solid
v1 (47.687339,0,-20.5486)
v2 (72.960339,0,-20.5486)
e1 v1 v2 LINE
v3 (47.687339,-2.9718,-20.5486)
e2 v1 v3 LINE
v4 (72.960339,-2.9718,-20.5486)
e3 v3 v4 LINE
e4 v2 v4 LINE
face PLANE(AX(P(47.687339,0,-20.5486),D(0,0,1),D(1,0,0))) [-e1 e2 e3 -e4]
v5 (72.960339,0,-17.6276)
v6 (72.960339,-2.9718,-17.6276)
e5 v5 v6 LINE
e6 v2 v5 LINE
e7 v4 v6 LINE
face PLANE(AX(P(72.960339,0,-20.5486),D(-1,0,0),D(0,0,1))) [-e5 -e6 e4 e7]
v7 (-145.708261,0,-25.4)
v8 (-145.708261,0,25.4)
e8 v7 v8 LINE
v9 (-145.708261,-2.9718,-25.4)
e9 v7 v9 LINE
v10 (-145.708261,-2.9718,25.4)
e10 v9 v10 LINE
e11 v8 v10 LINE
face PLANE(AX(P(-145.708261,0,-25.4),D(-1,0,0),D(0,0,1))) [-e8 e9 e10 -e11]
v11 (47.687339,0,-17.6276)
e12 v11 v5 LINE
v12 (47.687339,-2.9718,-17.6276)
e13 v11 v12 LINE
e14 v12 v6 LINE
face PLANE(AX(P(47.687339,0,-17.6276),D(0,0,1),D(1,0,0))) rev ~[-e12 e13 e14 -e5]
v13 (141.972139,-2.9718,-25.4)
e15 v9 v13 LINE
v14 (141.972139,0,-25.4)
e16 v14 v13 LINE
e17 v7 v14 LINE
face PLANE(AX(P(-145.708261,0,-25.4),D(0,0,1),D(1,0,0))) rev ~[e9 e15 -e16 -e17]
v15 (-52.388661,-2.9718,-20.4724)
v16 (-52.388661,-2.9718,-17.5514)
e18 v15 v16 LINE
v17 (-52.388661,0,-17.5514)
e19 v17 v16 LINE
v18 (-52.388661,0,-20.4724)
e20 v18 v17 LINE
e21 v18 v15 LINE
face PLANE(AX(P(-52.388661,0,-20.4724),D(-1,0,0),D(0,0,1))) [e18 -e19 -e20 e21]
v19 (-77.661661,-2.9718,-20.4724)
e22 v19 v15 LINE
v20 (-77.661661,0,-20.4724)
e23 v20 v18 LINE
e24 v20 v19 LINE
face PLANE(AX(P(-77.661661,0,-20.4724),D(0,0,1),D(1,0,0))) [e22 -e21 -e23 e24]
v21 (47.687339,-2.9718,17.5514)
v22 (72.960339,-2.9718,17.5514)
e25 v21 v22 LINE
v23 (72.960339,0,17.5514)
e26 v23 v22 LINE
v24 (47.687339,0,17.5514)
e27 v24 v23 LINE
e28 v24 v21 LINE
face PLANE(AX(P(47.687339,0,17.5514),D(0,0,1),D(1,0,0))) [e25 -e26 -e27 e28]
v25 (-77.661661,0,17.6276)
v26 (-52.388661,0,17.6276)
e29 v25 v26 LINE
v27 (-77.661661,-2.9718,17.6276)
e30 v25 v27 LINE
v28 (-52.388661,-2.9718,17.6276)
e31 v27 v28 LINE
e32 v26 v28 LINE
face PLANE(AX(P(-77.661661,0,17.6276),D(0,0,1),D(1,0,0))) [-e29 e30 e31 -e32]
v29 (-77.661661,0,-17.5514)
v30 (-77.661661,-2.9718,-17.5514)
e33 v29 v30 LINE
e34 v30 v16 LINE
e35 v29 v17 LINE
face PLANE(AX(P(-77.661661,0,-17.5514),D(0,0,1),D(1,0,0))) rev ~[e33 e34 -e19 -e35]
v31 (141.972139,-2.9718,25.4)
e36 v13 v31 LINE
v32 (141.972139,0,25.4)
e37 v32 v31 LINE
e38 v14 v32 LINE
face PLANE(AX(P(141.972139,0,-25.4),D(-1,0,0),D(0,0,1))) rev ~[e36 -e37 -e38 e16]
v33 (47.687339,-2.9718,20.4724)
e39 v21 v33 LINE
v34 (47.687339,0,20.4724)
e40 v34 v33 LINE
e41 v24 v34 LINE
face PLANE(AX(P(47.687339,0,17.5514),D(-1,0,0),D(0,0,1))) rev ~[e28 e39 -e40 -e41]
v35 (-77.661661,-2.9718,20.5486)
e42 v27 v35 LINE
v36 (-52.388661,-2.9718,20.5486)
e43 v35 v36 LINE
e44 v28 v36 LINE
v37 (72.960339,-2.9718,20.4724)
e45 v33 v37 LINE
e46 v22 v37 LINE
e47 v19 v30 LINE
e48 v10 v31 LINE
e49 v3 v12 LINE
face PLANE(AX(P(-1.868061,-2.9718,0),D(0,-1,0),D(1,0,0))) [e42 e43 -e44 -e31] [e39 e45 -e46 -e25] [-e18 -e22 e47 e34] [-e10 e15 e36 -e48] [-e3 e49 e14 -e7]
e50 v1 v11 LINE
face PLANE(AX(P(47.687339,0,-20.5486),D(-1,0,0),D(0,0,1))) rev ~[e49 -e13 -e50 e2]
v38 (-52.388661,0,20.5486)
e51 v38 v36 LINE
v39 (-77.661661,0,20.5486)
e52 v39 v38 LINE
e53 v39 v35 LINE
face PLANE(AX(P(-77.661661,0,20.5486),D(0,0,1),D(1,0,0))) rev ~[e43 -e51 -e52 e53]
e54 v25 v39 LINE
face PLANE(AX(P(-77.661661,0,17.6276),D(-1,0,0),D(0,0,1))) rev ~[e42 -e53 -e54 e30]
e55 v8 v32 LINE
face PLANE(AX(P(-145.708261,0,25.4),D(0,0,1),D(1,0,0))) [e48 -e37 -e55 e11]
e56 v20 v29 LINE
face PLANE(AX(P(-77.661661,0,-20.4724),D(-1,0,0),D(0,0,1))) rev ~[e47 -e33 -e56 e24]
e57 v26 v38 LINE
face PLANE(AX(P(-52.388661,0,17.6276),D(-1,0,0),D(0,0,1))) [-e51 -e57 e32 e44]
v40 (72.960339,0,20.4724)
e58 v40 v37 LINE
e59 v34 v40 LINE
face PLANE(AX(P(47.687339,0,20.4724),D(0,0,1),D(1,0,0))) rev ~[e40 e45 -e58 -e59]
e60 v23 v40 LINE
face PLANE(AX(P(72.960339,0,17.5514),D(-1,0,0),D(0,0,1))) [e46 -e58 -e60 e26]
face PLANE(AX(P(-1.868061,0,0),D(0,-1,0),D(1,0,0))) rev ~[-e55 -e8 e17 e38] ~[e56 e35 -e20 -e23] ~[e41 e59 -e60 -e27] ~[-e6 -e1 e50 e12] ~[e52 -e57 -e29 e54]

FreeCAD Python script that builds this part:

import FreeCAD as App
import Part
import Sketcher

V = App.Vector
Q = App.Units.Quantity


def add_polygon(sketch, points):
    """Adds a closed chain of lines whose ends are joined by coincident constraints."""
    first, n = sketch.GeometryCount, len(points)
    for a, b in zip(points, points[1:] + points[:1]):
        sketch.addGeometry(Part.LineSegment(App.Vector(*a, 0), App.Vector(*b, 0)), False)
    for i in range(n):
        sketch.addConstraint(Sketcher.Constraint("Coincident", first + i, 2, first + (i + 1) % n, 1))

doc = App.newDocument("Part")
body = doc.addObject("PartDesign::Body", "Body")

# Sketch on XZ plane
sketch1 = doc.addObject("Sketcher::SketchObject", "Sketch")
body.addObject(sketch1)
sketch1.AttachmentSupport = (doc.XZ_Plane, [""])
sketch1.MapMode = "FlatFace"
add_polygon(sketch1, [(-145.7, 25.4), (-145.7, -25.4), (142, -25.4), (142, 25.4)])  # lines 0-3
add_polygon(sketch1, [(-52.4, -20.5), (-77.7, -20.5), (-77.7, -17.6), (-52.4, -17.6)])  # lines 4-7
add_polygon(sketch1, [(73, -20.5), (47.7, -20.5), (47.7, -17.6), (73, -17.6)])  # lines 8-11
add_polygon(sketch1, [(-52.4, 17.6), (-77.7, 17.6), (-77.7, 20.5), (-52.4, 20.5)])  # lines 12-15
add_polygon(sketch1, [(73, 17.6), (47.7, 17.6), (47.7, 20.5), (73, 20.5)])  # lines 16-19
sketch1.addConstraint([
    Sketcher.Constraint("Vertical", 0),
    Sketcher.Constraint("Horizontal", 1),
    Sketcher.Constraint("Vertical", 2),
    Sketcher.Constraint("Horizontal", 3),
    Sketcher.Constraint("Horizontal", 4),
    Sketcher.Constraint("Vertical", 5),
    Sketcher.Constraint("Horizontal", 6),
    Sketcher.Constraint("Vertical", 7),
    Sketcher.Constraint("Horizontal", 8),
    Sketcher.Constraint("Vertical", 9),
    Sketcher.Constraint("Horizontal", 10),
    Sketcher.Constraint("Vertical", 11),
    Sketcher.Constraint("Horizontal", 12),
    Sketcher.Constraint("Vertical", 13),
    Sketcher.Constraint("Horizontal", 14),
    Sketcher.Constraint("Vertical", 15),
    Sketcher.Constraint("Horizontal", 16),
    Sketcher.Constraint("Vertical", 17),
    Sketcher.Constraint("Horizontal", 18),
    Sketcher.Constraint("Vertical", 19),
    Sketcher.Constraint("Vertical", 5, 2, 12, 2),
    Sketcher.Constraint("Vertical", 7, 2, 14, 2),
    Sketcher.Constraint("Vertical", 9, 2, 16, 2),
    Sketcher.Constraint("Vertical", 11, 2, 18, 2),
    Sketcher.Constraint("Equal", 6, 8),
    Sketcher.Constraint("Equal", 7, 9),
    Sketcher.Constraint("Equal", 11, 13),
    Sketcher.Constraint("Equal", 15, 17),
    Sketcher.Constraint("DistanceY", 0, 2, 0, 1, Q("2 in")),
    Sketcher.Constraint("DistanceY", 0, 2, -1, 1, Q("1 in")),
    Sketcher.Constraint("DistanceY", 4, 2, 12, 2, Q("1.5 in")),
    Sketcher.Constraint("DistanceY", 8, 2, 16, 2, Q("1.5 in")),
    Sketcher.Constraint("DistanceX", 1, 1, 1, 2, Q("11.326 in")),
    Sketcher.Constraint("DistanceX", 4, 2, 4, 1, Q("0.995 in")),
    Sketcher.Constraint("DistanceY", 5, 1, 5, 2, Q("0.115 in")),
    Sketcher.Constraint("DistanceX", 7, 2, 8, 2, Q("3.94 in")),
    Sketcher.Constraint("DistanceY", 4, 2, -1, 1, Q("0.806 in")),
    Sketcher.Constraint("DistanceY", 8, 2, -1, 1, Q("0.809 in")),
    Sketcher.Constraint("DistanceX", 0, 2, 4, 2, Q("2.679 in")),
    Sketcher.Constraint("DistanceX", 0, 2, -1, 1, Q("145.708261 mm")),
])
pad1 = doc.addObject("PartDesign::Pad", "Pad")
body.addObject(pad1)
pad1.Profile = sketch1
pad1.Length = Q("0.117 in")

doc.recompute()
